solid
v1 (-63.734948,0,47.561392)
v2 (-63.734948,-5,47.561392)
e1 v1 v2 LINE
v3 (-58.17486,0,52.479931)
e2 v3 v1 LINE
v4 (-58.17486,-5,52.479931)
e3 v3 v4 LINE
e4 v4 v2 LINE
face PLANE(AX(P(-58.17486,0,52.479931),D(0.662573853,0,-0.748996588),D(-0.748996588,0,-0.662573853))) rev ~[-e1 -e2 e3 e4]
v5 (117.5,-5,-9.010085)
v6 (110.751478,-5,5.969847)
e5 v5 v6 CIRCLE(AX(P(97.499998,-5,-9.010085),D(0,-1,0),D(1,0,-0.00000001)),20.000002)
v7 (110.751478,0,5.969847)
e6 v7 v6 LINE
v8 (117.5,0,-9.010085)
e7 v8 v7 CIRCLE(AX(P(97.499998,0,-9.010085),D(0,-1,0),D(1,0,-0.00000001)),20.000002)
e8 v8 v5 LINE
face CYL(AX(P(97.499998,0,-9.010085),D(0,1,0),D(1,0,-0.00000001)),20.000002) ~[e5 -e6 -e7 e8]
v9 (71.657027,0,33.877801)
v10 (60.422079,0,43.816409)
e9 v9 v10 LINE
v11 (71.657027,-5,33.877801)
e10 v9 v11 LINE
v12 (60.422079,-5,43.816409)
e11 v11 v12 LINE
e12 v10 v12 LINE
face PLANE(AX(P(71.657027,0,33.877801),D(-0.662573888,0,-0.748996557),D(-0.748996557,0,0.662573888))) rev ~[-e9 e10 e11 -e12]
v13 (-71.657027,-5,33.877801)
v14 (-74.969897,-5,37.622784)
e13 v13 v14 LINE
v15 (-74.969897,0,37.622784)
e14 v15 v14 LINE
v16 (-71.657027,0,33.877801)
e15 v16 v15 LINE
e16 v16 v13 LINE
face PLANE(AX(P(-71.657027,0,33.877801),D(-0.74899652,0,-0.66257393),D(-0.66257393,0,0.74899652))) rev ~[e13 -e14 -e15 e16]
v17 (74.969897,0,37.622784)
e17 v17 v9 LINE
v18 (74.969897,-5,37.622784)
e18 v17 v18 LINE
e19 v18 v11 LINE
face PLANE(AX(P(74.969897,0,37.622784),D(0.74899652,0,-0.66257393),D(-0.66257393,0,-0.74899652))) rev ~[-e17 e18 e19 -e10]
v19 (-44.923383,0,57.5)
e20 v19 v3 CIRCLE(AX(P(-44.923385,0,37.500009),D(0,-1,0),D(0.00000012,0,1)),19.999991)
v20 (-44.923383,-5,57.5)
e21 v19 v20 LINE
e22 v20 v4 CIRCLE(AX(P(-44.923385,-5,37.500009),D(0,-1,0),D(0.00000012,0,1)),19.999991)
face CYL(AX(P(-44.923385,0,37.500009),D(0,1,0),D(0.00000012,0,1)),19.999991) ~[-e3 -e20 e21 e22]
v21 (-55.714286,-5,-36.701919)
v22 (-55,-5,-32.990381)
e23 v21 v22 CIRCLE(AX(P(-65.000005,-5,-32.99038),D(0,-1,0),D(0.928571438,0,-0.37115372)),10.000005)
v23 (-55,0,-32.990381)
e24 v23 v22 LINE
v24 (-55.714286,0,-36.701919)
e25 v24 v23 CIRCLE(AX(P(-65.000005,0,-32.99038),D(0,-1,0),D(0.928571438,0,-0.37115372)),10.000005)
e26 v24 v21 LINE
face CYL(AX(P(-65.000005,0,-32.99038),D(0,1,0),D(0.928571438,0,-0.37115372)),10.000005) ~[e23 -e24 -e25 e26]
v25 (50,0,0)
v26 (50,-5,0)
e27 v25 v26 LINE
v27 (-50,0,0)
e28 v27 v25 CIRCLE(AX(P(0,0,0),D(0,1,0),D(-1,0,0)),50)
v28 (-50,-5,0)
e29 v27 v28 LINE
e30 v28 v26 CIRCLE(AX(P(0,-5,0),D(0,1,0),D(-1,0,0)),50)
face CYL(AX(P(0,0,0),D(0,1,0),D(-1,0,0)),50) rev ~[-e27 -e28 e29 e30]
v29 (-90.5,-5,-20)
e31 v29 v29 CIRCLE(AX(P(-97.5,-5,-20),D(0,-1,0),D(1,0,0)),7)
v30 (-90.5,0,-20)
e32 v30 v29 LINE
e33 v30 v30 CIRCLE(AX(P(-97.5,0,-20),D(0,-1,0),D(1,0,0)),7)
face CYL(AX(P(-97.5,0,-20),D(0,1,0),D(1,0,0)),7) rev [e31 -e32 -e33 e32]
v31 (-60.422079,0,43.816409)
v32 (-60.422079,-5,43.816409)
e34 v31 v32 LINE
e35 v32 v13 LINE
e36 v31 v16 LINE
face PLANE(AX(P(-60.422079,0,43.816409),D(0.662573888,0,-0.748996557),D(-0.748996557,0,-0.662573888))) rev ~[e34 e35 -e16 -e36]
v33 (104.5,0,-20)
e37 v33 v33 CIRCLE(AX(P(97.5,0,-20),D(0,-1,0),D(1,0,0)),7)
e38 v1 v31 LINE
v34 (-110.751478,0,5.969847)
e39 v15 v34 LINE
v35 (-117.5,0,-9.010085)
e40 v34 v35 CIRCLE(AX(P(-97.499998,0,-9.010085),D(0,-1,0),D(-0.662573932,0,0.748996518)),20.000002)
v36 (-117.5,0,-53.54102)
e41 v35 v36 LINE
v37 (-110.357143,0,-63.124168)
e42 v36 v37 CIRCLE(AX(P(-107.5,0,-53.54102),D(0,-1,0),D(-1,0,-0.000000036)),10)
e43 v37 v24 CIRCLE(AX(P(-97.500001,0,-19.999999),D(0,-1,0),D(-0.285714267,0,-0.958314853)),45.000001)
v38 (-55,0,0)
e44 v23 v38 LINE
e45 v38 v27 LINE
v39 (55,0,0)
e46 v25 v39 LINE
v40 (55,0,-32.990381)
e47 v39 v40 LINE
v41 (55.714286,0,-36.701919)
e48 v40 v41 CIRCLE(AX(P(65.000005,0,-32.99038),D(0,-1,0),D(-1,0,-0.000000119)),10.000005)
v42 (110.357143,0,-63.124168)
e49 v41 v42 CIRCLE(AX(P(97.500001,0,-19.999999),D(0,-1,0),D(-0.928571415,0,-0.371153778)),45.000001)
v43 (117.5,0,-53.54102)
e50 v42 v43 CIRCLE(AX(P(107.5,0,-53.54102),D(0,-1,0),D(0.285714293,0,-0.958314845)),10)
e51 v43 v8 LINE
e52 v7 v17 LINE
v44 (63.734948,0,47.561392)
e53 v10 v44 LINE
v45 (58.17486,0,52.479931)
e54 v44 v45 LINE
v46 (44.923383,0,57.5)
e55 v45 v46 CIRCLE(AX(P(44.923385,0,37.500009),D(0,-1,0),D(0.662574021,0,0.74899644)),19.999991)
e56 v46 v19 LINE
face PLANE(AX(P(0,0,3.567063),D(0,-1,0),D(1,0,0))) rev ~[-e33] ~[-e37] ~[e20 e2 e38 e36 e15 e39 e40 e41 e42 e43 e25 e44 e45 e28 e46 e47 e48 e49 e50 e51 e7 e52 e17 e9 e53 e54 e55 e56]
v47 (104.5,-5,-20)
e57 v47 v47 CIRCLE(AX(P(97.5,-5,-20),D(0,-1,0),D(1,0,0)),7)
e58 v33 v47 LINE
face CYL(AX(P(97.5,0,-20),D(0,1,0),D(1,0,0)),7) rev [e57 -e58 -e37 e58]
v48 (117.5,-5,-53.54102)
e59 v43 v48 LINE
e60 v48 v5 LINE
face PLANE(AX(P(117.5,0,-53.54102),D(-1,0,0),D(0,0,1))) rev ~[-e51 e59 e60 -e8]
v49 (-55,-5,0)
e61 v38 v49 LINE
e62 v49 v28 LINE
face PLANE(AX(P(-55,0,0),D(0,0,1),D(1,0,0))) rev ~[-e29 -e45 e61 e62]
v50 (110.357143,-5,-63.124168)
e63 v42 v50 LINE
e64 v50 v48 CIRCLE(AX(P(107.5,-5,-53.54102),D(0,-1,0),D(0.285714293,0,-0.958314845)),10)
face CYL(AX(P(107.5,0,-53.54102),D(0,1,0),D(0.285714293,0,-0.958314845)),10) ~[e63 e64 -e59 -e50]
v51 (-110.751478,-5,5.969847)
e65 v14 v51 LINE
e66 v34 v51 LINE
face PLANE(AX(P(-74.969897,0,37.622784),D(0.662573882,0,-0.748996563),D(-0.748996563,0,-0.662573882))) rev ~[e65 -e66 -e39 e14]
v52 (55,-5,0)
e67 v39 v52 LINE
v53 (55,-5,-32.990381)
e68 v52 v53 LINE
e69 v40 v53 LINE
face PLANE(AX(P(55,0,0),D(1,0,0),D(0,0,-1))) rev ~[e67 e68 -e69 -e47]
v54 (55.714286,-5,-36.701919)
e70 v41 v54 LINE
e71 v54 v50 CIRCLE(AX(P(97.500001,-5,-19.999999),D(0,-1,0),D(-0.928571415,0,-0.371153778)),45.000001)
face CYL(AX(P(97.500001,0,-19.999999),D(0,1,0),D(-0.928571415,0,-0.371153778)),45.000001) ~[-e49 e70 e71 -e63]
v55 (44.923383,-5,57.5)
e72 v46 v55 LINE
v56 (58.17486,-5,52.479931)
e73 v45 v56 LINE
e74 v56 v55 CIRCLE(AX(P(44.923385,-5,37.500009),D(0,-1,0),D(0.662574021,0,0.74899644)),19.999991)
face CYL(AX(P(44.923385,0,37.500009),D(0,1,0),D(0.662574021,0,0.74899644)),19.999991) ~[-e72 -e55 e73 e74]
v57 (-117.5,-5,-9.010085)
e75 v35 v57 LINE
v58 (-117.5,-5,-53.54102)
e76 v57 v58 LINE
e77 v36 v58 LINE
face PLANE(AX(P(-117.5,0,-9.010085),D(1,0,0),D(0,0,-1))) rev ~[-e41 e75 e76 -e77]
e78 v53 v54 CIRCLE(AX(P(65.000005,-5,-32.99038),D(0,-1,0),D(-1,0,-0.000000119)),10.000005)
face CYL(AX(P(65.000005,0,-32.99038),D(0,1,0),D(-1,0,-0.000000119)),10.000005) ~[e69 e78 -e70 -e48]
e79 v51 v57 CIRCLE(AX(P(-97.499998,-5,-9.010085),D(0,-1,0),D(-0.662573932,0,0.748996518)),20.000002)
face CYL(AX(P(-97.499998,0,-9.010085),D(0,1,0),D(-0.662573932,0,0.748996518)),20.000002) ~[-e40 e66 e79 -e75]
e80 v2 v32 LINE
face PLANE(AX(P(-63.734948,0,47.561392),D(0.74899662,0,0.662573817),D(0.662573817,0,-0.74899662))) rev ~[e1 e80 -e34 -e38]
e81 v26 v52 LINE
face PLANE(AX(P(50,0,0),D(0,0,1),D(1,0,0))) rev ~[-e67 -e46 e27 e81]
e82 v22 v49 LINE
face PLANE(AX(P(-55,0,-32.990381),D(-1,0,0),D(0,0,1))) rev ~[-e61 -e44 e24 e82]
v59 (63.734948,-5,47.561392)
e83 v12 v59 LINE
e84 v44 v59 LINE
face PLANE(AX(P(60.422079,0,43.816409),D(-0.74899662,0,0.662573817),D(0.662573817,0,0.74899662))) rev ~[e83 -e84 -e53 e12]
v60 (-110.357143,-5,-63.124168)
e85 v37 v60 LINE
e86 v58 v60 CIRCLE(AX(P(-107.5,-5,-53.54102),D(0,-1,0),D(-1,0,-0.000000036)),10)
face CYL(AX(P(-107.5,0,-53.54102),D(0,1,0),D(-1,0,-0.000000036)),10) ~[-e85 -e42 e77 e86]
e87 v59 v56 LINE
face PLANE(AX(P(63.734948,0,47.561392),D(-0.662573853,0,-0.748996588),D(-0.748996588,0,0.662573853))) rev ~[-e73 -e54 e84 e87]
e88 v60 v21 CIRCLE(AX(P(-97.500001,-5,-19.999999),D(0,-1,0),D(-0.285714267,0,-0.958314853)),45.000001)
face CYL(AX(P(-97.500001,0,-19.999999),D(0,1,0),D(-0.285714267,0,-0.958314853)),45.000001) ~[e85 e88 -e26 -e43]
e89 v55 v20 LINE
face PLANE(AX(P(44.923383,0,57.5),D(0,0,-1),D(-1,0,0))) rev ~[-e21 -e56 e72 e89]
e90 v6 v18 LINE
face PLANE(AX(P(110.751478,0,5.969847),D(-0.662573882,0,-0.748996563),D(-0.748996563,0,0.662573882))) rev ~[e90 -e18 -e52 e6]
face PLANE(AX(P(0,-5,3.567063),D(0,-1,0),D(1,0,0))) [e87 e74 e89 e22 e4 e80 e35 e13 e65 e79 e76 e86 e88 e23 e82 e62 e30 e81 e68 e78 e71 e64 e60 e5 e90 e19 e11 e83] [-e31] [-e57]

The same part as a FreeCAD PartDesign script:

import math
import FreeCAD as App
import Part
import Sketcher
from FreeCAD import Vector
Q = App.Units.Quantity

doc = App.newDocument("Part")
body = doc.addObject("PartDesign::Body", "Body")

sketch1 = body.newObject("Sketcher::SketchObject", "Sketch")
sketch1.AttachmentSupport = (doc.getObject("XZ_Plane"), [""])
sketch1.MapMode = "FlatFace"
sketch1.addGeometry([
    Part.ArcOfCircle(Part.Circle(Vector(0, 0, 0), Vector(0, 0, 1), 50), math.radians(0), math.radians(180)),
    Part.LineSegment(Vector(50, 0, 0), Vector(55, 0, 0)),
    Part.LineSegment(Vector(55, 0, 0), Vector(55, -32.990381, 0)),
    Part.ArcOfCircle(Part.Circle(Vector(65.000005, -32.99038, 0), Vector(0, 0, 1), 10.000005), math.radians(-179.999993), math.radians(-158.213212)),
    Part.ArcOfCircle(Part.Circle(Vector(97.500001, -19.999999, 0), Vector(0, 0, 1), 45.000001), math.radians(-158.213209), math.radians(-73.398452)),
    Part.ArcOfCircle(Part.Circle(Vector(107.5, -53.54102, 0), Vector(0, 0, 1), 10), math.radians(-73.39845), math.radians(-0.000002)),
    Part.LineSegment(Vector(117.5, -53.54102, 0), Vector(117.5, -9.010085, 0)),
    Part.ArcOfCircle(Part.Circle(Vector(97.499998, -9.010085, 0), Vector(0, 0, 1), 20.000002), math.radians(-0.000001), math.radians(48.503528)),
    Part.LineSegment(Vector(110.751478, 5.969847, 0), Vector(74.969897, 37.622784, 0)),
    Part.LineSegment(Vector(74.969897, 37.622784, 0), Vector(71.657027, 33.877801, 0)),
    Part.LineSegment(Vector(71.657027, 33.877801, 0), Vector(60.422079, 43.816409, 0)),
    Part.LineSegment(Vector(60.422079, 43.816409, 0), Vector(63.734948, 47.561392, 0)),
    Part.LineSegment(Vector(63.734948, 47.561392, 0), Vector(58.17486, 52.479931, 0)),
    Part.ArcOfCircle(Part.Circle(Vector(44.923385, 37.500009, 0), Vector(0, 0, 1), 19.999991), math.radians(48.503521), math.radians(90.000007)),
    Part.LineSegment(Vector(44.923383, 57.5, 0), Vector(-44.923383, 57.5, 0)),
    Part.ArcOfCircle(Part.Circle(Vector(-44.923385, 37.500009, 0), Vector(0, 0, 1), 19.999991), math.radians(89.999993), math.radians(131.496479)),
    Part.LineSegment(Vector(-58.17486, 52.479931, 0), Vector(-63.734948, 47.561392, 0)),
    Part.LineSegment(Vector(-63.734948, 47.561392, 0), Vector(-60.422079, 43.816409, 0)),
    Part.LineSegment(Vector(-60.422079, 43.816409, 0), Vector(-71.657027, 33.877801, 0)),
    Part.LineSegment(Vector(-71.657027, 33.877801, 0), Vector(-74.969897, 37.622784, 0)),
    Part.LineSegment(Vector(-74.969897, 37.622784, 0), Vector(-110.751478, 5.969847, 0)),
    Part.ArcOfCircle(Part.Circle(Vector(-97.499998, -9.010085, 0), Vector(0, 0, 1), 20.000002), math.radians(131.496472), math.radians(180.000001)),
    Part.LineSegment(Vector(-117.5, -9.010085, 0), Vector(-117.5, -53.54102, 0)),
    Part.ArcOfCircle(Part.Circle(Vector(-107.5, -53.54102, 0), Vector(0, 0, 1), 10), math.radians(-179.999998), math.radians(-106.60155)),
    Part.ArcOfCircle(Part.Circle(Vector(-97.500001, -19.999999, 0), Vector(0, 0, 1), 45.000001), math.radians(-106.601548), math.radians(-21.786791)),
    Part.ArcOfCircle(Part.Circle(Vector(-65.000005, -32.99038, 0), Vector(0, 0, 1), 10.000005), math.radians(-21.786788), math.radians(-0.000007)),
    Part.LineSegment(Vector(-55, -32.990381, 0), Vector(-55, 0, 0)),
    Part.LineSegment(Vector(-55, 0, 0), Vector(-50, 0, 0)),
    Part.Circle(Vector(-97.5, -20, 0), Vector(0, 0, 1), 7),
    Part.Circle(Vector(97.5, -20, 0), Vector(0, 0, 1), 7),
], False)
sketch1.addConstraint([
    Sketcher.Constraint("Coincident", 0, 1, 1, 1),
    Sketcher.Constraint("Coincident", 1, 2, 2, 1),
    Sketcher.Constraint("Tangent", 2, 2, 3, 1),
    Sketcher.Constraint("Tangent", 3, 2, 4, 1),
    Sketcher.Constraint("Tangent", 4, 2, 5, 1),
    Sketcher.Constraint("Tangent", 5, 2, 6, 1),
    Sketcher.Constraint("Tangent", 6, 2, 7, 1),
    Sketcher.Constraint("Tangent", 7, 2, 8, 1),
    Sketcher.Constraint("Coincident", 8, 2, 9, 1),
    Sketcher.Constraint("Coincident", 9, 2, 10, 1),
    Sketcher.Constraint("Coincident", 10, 2, 11, 1),
    Sketcher.Constraint("Coincident", 11, 2, 12, 1),
    Sketcher.Constraint("Tangent", 12, 2, 13, 1),
    Sketcher.Constraint("Tangent", 13, 2, 14, 1),
    Sketcher.Constraint("Tangent", 14, 2, 15, 1),
    Sketcher.Constraint("Tangent", 15, 2, 16, 1),
    Sketcher.Constraint("Coincident", 16, 2, 17, 1),
    Sketcher.Constraint("Coincident", 17, 2, 18, 1),
    Sketcher.Constraint("Coincident", 18, 2, 19, 1),
    Sketcher.Constraint("Coincident", 19, 2, 20, 1),
    Sketcher.Constraint("Tangent", 20, 2, 21, 1),
    Sketcher.Constraint("Tangent", 21, 2, 22, 1),
    Sketcher.Constraint("Tangent", 22, 2, 23, 1),
    Sketcher.Constraint("Tangent", 23, 2, 24, 1),
    Sketcher.Constraint("Tangent", 24, 2, 25, 1),
    Sketcher.Constraint("Tangent", 25, 2, 26, 1),
    Sketcher.Constraint("Coincident", 26, 2, 27, 1),
    Sketcher.Constraint("Coincident", 27, 2, 0, 2),
    Sketcher.Constraint("Horizontal", 1),
    Sketcher.Constraint("Vertical", 2),
    Sketcher.Constraint("Vertical", 6),
    Sketcher.Constraint("Horizontal", 14),
    Sketcher.Constraint("Vertical", 22),
    Sketcher.Constraint("Vertical", 26),
    Sketcher.Constraint("Horizontal", 27),
    Sketcher.Constraint("Coincident", 0, 3, -1, 1),
    Sketcher.Constraint("Coincident", 28, 3, 24, 3),
    Sketcher.Constraint("Coincident", 29, 3, 4, 3),
    Sketcher.Constraint("Equal", 13, 15),
    Sketcher.Constraint("Equal", 7, 21),
    Sketcher.Constraint("Equal", 5, 23),
    Sketcher.Constraint("Equal", 4, 24),
    Sketcher.Constraint("Equal", 3, 25),
    Sketcher.Constraint("Equal", 28, 29),
    Sketcher.Constraint("Symmetric", 1, 2, 26, 2, -1, 1),
    Sketcher.Constraint("Symmetric", 7, 3, 21, 3, -2),
    Sketcher.Constraint("Symmetric", 4, 3, 24, 3, -2),
    Sketcher.Constraint("Symmetric", 12, 2, 15, 2, -2),
    Sketcher.Constraint("Symmetric", 10, 2, 17, 2, -2),
    Sketcher.Constraint("Symmetric", 9, 2, 18, 2, -2),
    Sketcher.Constraint("Symmetric", 8, 2, 19, 2, -2),
    Sketcher.Constraint("PointOnObject", 0, 1, -1),
    Sketcher.Constraint("Perpendicular", 8, 9),
    Sketcher.Constraint("Perpendicular", 9, 10),
    Sketcher.Constraint("Perpendicular", 10, 11),
    Sketcher.Constraint("Perpendicular", 11, 12),
    Sketcher.Constraint("Perpendicular", 16, 17),
    Sketcher.Constraint("Vertical", 21, 3, 28, 3),
    Sketcher.Constraint("Equal", 9, 11),
    Sketcher.Constraint("Diameter", 28, Q("14 mm")),
    Sketcher.Constraint("Radius", 0, Q("50 mm")),
    Sketcher.Constraint("Radius", 4, Q("45.000001 mm")),
    Sketcher.Constraint("Radius", 5, Q("10 mm")),
    Sketcher.Constraint("Radius", 7, Q("20.000002 mm")),
    Sketcher.Constraint("DistanceX", 1, 1, 1, 2, Q("5 mm")),
    Sketcher.Constraint("Distance", 9, Q("5.000001 mm")),
    Sketcher.Constraint("Distance", 10, Q("15 mm")),
    Sketcher.Constraint("DistanceY", 4, 3, -1, 1, Q("19.999999 mm")),
    Sketcher.Constraint("DistanceX", -1, 1, 4, 3, Q("97.500001 mm")),
    Sketcher.Constraint("DistanceY", -1, 1, 13, 2, Q("57.5 mm")),
    Sketcher.Constraint("Radius", 13, Q("19.999991 mm")),
    Sketcher.Constraint("Radius", 3, Q("10.000005 mm")),
    Sketcher.Constraint("DistanceY", -1, 1, 9, 2, Q("33.877801 mm")),
    Sketcher.Constraint("DistanceX", 8, 2, 7, 3, Q("22.530101 mm")),
    Sketcher.Constraint("DistanceY", 13, 3, 10, 2, Q("6.3164 mm")),
])
pad1 = body.newObject("PartDesign::Pad", "Pad")
pad1.Profile = sketch1
pad1.Length = 5

doc.recompute()
